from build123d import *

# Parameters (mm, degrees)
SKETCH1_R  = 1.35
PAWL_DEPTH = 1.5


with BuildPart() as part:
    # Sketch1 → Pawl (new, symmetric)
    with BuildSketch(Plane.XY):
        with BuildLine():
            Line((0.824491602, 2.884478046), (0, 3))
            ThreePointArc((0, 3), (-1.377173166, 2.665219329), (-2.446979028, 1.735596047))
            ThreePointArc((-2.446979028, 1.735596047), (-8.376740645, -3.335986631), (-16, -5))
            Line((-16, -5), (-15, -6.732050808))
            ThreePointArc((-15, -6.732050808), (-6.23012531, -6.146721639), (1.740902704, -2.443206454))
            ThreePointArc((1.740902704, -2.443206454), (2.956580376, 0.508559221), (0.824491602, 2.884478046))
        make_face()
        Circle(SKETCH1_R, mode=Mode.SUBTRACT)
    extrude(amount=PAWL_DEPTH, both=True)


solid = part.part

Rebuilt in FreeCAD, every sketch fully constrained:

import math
import FreeCAD as App
import Part
import Sketcher

V = App.Vector
Q = App.Units.Quantity

doc = App.newDocument("Part")
body = doc.addObject("PartDesign::Body", "Body")

sketch1 = body.newObject("Sketcher::SketchObject", "Sketch")
sketch1.AttachmentSupport = (doc.getObject("XY_Plane"), [""])
sketch1.MapMode = "FlatFace"
sketch1.addGeometry([
    Part.LineSegment(V(0.824492, 2.884478, 0), V(0, 3, 0)),
    Part.ArcOfCircle(Part.Circle(V(0, 0, 0), V(0, 0, 1), 3), math.radians(90), math.radians(144.652641)),
    Part.ArcOfCircle(Part.Circle(V(-15.497534, 10.992108, 0), V(0, 0, 1), 16), math.radians(-91.79962), math.radians(-35.347359)),
    Part.LineSegment(V(-16, -5, 0), V(-15, -6.732051, 0)),
    Part.ArcOfCircle(Part.Circle(V(-12.186319, 17.102445, 0), V(0, 0, 1), 24), math.radians(-96.732652), math.radians(-54.528291)),
    Part.ArcOfCircle(Part.Circle(V(0, 0, 0), V(0, 0, 1), 3), math.radians(-54.528291), math.radians(74.048085)),
    Part.Circle(V(0, 0, 0), V(0, 0, 1), 1.35),
], False)
sketch1.addConstraint([
    Sketcher.Constraint("Coincident", 0, 2, 1, 1),
    Sketcher.Constraint("Tangent", 1, 2, 2, 2),
    Sketcher.Constraint("Coincident", 2, 1, 3, 1),
    Sketcher.Constraint("Coincident", 3, 2, 4, 1),
    Sketcher.Constraint("Tangent", 4, 2, 5, 1),
    Sketcher.Constraint("Coincident", 5, 2, 0, 1),
    Sketcher.Constraint("Coincident", 1, 3, -1, 1),
    Sketcher.Constraint("Coincident", 5, 3, -1, 1),
    Sketcher.Constraint("Coincident", 6, 3, -1, 1),
    Sketcher.Constraint("Equal", 1, 5),
    Sketcher.Constraint("PointOnObject", 0, 2, -2),
    Sketcher.Constraint("Radius", 1, 3.0),
    Sketcher.Constraint("Radius", 2, 16.0),
    Sketcher.Constraint("Radius", 4, 24.0),
    Sketcher.Constraint("Diameter", 6, 2.7),
    Sketcher.Constraint("Angle", 3, Q("-60 deg")),
    Sketcher.Constraint("Distance", 3, 2.0),
    Sketcher.Constraint("DistanceX", 2, 1, -1, 1, 16.0),
    Sketcher.Constraint("DistanceY", 2, 1, -1, 1, 5.0),
    Sketcher.Constraint("DistanceX", -1, 1, 5, 2, 0.824492),
])
pad1 = body.newObject("PartDesign::Pad", "Pad")
pad1.Profile = sketch1
pad1.Length = 3
pad1.Midplane = True

doc.recompute()
